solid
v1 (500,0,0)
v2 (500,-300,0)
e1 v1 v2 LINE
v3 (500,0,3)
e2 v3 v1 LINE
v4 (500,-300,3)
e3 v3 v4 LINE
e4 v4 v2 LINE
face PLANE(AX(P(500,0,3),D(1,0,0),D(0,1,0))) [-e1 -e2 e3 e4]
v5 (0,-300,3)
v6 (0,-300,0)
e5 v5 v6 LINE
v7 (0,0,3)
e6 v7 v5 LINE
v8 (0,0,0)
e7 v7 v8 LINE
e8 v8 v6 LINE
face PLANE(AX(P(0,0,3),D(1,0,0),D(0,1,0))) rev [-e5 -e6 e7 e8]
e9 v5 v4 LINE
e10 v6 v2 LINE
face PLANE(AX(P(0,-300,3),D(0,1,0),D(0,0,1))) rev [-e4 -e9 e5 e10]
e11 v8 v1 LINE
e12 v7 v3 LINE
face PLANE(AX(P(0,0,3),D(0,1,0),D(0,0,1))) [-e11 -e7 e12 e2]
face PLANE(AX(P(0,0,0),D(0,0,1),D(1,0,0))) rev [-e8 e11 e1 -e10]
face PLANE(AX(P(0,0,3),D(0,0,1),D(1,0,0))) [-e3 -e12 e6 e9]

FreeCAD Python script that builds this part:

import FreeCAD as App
import Part
import Sketcher

V = App.Vector


def add_polygon(sketch, points):
    """Adds a closed chain of lines whose ends are joined by coincident constraints."""
    first, n = sketch.GeometryCount, len(points)
    for a, b in zip(points, points[1:] + points[:1]):
        sketch.addGeometry(Part.LineSegment(App.Vector(*a, 0), App.Vector(*b, 0)), False)
    for i in range(n):
        sketch.addConstraint(Sketcher.Constraint("Coincident", first + i, 2, first + (i + 1) % n, 1))

doc = App.newDocument("Part")
body = doc.addObject("PartDesign::Body", "Body")

sketch1 = body.newObject("Sketcher::SketchObject", "Sketch")
sketch1.AttachmentSupport = (doc.getObject("XY_Plane"), [""])
sketch1.MapMode = "FlatFace"
add_polygon(sketch1, [(0, 0), (0, -300), (500, -300), (500, 0)])
sketch1.addConstraint([
    Sketcher.Constraint("Vertical", 0),
    Sketcher.Constraint("Horizontal", 1),
    Sketcher.Constraint("Vertical", 2),
    Sketcher.Constraint("Horizontal", 3),
    Sketcher.Constraint("Coincident", 3, 2, -1, 1),
    Sketcher.Constraint("DistanceX", 1, 1, 1, 2, 500.0),
    Sketcher.Constraint("DistanceY", 0, 2, 0, 1, 300.0),
])
pad1 = body.newObject("PartDesign::Pad", "Pad")
pad1.Profile = sketch1
pad1.Length = 3

doc.recompute()
